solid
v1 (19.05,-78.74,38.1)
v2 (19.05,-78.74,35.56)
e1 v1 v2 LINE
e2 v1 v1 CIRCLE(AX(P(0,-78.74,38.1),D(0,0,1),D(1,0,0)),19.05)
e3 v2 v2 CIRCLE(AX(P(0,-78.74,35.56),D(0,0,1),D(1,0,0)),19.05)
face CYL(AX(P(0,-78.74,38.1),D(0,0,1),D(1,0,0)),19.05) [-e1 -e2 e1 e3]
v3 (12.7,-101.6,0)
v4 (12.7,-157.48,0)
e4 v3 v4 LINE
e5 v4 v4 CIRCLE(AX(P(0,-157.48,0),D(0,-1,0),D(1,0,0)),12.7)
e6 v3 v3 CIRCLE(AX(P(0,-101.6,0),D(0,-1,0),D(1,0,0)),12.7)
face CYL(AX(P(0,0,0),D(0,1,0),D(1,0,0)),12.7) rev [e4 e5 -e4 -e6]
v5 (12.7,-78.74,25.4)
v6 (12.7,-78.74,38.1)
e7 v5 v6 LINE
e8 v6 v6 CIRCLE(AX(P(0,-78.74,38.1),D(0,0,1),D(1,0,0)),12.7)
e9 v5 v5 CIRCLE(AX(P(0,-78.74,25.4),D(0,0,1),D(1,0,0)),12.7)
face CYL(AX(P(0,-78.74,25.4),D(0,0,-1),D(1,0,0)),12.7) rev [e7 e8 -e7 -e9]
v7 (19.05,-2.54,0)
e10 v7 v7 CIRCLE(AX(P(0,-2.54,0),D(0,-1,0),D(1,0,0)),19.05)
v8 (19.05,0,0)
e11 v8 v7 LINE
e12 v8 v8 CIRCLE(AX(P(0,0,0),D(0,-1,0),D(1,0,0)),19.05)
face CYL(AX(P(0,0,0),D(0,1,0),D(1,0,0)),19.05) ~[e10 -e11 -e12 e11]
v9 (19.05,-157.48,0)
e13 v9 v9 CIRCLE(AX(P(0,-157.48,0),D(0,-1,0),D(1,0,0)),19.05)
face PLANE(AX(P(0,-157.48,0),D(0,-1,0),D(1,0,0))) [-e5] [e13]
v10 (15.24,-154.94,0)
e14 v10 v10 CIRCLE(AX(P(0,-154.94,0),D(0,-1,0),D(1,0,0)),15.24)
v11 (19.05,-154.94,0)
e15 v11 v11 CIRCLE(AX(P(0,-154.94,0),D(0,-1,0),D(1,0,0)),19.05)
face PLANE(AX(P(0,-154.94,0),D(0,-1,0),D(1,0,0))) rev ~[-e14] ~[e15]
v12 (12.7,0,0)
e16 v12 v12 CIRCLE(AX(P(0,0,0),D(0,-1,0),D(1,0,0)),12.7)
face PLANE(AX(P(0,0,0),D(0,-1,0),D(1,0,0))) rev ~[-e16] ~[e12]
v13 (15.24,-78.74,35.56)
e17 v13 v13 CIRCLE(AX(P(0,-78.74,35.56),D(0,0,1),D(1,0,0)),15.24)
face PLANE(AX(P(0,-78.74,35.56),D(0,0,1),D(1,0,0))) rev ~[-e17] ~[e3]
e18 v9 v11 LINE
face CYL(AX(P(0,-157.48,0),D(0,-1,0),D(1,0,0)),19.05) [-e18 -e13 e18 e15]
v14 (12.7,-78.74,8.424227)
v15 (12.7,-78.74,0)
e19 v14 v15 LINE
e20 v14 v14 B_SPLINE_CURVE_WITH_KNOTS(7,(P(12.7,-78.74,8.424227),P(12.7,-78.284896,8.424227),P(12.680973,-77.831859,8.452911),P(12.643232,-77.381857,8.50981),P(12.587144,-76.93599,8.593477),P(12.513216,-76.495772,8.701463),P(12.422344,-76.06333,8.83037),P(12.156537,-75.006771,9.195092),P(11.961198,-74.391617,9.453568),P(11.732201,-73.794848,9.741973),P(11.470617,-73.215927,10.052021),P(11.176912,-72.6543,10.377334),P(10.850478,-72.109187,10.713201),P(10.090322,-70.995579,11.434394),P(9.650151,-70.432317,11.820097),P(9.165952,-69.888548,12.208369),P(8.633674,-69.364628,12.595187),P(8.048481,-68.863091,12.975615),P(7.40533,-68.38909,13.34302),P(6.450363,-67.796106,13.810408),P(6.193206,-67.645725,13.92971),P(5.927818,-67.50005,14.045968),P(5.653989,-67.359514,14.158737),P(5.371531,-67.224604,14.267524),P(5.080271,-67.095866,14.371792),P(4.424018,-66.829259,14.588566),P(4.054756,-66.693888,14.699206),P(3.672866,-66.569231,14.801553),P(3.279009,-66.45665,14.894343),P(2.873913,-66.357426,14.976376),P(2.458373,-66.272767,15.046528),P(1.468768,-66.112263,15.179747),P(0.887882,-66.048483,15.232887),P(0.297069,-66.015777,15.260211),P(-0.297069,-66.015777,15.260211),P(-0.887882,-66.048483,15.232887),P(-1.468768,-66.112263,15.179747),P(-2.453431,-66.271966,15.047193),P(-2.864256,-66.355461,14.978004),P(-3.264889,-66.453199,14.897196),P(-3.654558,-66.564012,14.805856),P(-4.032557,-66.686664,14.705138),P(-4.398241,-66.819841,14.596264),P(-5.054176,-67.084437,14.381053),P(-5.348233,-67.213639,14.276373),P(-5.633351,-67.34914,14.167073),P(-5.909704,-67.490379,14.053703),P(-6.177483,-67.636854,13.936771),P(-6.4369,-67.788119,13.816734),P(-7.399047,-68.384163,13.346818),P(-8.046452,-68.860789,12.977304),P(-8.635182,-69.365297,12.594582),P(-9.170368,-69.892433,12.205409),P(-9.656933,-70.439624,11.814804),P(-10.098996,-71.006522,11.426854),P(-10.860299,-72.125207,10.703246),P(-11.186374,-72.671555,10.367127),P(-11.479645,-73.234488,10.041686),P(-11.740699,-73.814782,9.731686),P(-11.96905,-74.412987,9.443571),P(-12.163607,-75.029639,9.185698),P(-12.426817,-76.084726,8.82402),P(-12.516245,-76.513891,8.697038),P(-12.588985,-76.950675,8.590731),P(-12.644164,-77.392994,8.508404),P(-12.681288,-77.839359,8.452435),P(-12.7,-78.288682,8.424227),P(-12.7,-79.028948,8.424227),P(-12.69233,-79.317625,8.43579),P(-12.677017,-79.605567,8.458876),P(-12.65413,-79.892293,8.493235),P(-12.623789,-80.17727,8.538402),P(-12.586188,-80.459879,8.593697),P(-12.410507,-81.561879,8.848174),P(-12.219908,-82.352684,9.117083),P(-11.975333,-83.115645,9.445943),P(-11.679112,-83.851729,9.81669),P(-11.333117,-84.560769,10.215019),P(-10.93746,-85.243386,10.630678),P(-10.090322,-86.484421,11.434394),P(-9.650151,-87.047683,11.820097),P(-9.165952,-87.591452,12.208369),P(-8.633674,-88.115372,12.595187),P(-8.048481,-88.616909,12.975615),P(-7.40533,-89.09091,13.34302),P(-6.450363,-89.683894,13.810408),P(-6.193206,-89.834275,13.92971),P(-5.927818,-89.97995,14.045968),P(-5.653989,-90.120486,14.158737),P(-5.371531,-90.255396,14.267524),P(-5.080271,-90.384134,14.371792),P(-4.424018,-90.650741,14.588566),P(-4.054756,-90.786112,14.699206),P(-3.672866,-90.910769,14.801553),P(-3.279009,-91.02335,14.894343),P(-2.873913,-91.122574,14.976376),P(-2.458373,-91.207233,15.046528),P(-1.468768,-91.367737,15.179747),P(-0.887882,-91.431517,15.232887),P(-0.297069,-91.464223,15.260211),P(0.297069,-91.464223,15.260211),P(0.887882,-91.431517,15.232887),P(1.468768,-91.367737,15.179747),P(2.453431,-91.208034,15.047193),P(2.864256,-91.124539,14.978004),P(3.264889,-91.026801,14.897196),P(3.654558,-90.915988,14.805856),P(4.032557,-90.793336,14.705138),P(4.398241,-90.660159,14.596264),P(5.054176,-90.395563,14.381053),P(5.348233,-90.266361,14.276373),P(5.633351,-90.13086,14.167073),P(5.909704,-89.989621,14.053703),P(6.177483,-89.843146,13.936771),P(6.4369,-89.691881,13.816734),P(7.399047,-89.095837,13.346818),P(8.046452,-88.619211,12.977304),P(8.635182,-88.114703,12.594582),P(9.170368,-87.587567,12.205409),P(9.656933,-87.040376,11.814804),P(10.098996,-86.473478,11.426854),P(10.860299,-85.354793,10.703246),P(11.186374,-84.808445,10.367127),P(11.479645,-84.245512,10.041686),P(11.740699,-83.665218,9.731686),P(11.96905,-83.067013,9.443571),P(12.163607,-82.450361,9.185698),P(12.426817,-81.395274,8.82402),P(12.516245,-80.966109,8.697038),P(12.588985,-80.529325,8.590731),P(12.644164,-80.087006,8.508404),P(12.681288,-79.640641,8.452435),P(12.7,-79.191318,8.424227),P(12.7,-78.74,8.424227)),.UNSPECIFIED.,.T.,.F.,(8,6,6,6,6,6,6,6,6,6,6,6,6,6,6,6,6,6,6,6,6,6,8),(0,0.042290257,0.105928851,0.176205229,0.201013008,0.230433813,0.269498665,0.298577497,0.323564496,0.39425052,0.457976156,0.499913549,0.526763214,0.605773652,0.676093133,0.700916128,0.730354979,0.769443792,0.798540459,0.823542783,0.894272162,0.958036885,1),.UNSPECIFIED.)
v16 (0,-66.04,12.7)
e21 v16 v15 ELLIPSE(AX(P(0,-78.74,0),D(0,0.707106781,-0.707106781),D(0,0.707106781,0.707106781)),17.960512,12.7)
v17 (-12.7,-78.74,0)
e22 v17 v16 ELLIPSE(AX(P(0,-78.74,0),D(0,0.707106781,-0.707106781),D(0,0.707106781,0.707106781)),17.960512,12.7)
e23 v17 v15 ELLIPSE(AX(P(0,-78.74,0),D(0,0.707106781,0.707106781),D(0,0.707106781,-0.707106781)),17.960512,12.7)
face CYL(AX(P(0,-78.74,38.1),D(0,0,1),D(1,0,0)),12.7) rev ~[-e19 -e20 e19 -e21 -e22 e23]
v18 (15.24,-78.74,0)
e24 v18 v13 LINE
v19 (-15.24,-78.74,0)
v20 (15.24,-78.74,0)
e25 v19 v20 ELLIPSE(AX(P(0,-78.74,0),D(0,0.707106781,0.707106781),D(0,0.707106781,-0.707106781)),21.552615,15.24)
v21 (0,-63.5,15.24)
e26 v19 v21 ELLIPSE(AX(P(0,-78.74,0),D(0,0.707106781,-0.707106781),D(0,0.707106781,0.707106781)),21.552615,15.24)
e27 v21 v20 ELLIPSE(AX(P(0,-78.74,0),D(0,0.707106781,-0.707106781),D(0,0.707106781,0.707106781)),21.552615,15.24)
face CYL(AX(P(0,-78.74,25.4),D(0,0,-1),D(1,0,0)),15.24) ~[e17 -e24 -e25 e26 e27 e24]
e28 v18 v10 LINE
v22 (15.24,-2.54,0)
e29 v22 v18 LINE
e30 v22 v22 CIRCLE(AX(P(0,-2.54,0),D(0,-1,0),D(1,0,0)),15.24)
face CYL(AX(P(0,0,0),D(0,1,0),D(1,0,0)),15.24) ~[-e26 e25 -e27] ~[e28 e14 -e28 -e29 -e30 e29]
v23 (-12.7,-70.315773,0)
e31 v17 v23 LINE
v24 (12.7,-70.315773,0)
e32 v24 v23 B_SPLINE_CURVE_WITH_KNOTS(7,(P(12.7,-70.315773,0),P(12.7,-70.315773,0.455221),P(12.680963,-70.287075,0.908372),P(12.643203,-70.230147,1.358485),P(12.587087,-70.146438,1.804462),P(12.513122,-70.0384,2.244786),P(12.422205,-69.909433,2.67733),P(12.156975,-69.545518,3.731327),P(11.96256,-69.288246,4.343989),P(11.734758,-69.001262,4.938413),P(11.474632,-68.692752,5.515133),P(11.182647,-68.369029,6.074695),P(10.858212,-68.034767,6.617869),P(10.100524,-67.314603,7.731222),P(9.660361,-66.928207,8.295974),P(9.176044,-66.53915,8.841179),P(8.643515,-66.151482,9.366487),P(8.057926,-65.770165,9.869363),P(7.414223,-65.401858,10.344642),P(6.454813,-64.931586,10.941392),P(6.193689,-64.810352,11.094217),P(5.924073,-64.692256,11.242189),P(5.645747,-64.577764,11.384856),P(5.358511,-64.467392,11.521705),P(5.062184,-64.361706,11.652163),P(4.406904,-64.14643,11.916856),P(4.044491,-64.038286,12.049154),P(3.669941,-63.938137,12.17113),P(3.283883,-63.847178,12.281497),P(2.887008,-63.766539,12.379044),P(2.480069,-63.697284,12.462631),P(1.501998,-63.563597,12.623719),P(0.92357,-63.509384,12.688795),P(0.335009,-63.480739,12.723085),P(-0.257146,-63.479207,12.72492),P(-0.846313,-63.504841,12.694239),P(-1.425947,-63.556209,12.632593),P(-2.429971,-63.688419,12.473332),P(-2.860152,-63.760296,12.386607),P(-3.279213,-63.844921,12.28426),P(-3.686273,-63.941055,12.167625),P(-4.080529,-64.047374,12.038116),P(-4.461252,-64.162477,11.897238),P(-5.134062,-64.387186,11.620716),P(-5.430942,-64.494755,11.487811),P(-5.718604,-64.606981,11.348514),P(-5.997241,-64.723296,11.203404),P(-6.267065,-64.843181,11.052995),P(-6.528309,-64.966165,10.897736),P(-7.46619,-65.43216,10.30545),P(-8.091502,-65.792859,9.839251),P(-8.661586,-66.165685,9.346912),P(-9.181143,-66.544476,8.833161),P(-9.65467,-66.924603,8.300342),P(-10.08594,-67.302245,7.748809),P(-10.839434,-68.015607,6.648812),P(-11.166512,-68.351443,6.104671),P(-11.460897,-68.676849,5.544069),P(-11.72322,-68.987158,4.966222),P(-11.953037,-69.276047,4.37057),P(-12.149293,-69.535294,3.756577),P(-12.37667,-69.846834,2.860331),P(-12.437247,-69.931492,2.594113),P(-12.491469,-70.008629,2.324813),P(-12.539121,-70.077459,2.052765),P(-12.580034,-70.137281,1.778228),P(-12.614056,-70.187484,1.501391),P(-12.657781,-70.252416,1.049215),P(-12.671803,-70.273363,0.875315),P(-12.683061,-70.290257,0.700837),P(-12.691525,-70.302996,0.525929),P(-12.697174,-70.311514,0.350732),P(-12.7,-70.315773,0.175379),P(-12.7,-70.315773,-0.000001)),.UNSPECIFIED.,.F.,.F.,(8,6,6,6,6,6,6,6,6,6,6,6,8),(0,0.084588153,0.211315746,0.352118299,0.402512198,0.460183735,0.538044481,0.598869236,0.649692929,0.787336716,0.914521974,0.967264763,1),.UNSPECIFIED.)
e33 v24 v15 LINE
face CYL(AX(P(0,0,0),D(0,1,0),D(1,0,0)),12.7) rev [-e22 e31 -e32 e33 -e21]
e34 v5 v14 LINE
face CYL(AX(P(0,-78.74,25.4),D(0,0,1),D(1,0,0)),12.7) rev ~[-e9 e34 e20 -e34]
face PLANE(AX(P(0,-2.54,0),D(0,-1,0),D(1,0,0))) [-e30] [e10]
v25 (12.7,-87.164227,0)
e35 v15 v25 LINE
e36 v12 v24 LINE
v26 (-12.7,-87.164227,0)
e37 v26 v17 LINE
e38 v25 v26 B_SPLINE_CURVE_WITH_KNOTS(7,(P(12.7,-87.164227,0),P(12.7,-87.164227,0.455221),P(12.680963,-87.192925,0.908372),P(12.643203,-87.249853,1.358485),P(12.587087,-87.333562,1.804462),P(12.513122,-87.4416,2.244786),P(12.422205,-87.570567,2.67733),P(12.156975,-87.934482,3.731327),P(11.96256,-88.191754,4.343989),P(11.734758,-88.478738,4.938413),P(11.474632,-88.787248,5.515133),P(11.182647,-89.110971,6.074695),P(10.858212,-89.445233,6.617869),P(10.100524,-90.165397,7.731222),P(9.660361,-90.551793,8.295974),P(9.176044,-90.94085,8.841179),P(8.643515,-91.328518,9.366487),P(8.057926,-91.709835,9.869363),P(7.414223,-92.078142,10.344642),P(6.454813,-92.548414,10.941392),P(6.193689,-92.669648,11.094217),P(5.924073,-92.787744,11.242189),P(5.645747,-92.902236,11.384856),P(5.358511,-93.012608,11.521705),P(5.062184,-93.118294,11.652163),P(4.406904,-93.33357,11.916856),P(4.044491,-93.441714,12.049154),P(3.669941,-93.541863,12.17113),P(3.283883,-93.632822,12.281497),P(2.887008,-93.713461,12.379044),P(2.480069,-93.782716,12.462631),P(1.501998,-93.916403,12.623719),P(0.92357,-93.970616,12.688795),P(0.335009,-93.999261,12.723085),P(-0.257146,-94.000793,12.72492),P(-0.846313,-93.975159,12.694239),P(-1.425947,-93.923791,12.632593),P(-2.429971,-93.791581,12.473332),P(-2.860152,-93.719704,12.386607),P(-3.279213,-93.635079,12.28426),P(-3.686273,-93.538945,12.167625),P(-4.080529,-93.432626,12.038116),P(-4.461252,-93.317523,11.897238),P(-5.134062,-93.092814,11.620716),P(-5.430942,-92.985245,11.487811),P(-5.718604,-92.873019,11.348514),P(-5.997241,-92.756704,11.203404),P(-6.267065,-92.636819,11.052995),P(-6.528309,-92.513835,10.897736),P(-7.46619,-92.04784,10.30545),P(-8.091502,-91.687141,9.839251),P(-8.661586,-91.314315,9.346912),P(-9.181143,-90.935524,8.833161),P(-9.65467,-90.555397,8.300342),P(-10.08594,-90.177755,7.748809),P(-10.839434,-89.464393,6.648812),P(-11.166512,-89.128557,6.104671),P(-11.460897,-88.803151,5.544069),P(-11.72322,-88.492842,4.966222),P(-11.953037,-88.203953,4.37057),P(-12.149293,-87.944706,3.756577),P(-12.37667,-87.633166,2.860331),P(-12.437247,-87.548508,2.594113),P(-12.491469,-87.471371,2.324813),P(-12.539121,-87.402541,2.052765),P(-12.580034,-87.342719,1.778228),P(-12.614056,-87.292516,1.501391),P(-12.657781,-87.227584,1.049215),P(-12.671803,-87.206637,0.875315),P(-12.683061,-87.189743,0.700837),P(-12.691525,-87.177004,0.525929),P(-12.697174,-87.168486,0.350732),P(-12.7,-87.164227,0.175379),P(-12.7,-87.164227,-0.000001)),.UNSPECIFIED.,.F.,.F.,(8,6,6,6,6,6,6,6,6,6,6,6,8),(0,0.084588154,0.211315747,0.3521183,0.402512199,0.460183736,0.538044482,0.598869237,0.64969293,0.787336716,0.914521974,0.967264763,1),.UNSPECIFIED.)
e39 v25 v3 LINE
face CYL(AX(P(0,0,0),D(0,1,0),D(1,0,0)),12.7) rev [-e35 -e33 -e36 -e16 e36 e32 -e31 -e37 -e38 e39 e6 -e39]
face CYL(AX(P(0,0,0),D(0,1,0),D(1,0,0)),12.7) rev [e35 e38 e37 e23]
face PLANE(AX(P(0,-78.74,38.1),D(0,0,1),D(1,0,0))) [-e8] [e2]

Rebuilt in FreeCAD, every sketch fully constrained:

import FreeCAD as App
import Part
import Sketcher

V = App.Vector
Q = App.Units.Quantity

doc = App.newDocument("Part")
body = doc.addObject("PartDesign::Body", "Body")

# Sketch on XZ plane
sketch1 = body.newObject("Sketcher::SketchObject", "Sketch")
sketch1.AttachmentSupport = (doc.getObject("XZ_Plane"), [""])
sketch1.MapMode = "FlatFace"
sketch1.addGeometry([
    Part.Circle(V(0, 0, 0), V(0, 0, 1), 15),
    Part.Circle(V(0, 0, 0), V(0, 0, 1), 13),
], False)
sketch1.addConstraint([
    Sketcher.Constraint("Coincident", 0, 3, -1, 1),
    Sketcher.Constraint("Coincident", 1, 3, -1, 1),
    Sketcher.Constraint("Diameter", 1, Q("1 in")),
    Sketcher.Constraint("Diameter", 0, Q("1.2 in")),
])
pad1 = body.newObject("PartDesign::Pad", "Pad")
pad1.Profile = sketch1
pad1.Length = Q("6.2 in")

# Sketch on XZ plane
sketch2 = body.newObject("Sketcher::SketchObject", "Sketch001")
sketch2.AttachmentSupport = (doc.getObject("XZ_Plane"), [""])
sketch2.MapMode = "FlatFace"
sketch2.addGeometry([
    Part.Circle(V(0, 0, 0), V(0, 0, 1), 19),
    Part.Circle(V(0, 0, 0), V(0, 0, 1), 15),
], False)
sketch2.addConstraint([
    Sketcher.Constraint("Coincident", 0, 3, -1, 1),
    Sketcher.Constraint("Coincident", 1, 3, -1, 1),
    Sketcher.Constraint("Diameter", 0, Q("1.5 in")),
    Sketcher.Constraint("Diameter", 1, Q("1.2 in")),
])
pad2 = body.newObject("PartDesign::Pad", "Pad001")
pad2.Profile = sketch2
pad2.Length = Q("0.1 in")

# Sketch on XZ plane
sketch3 = body.newObject("Sketcher::SketchObject", "Sketch002")
sketch3.AttachmentSupport = (doc.getObject("XZ_Plane"), [""])
sketch3.MapMode = "FlatFace"
sketch3.AttachmentOffset = App.Placement(V(0, 0, 6.2 * 25.4), App.Rotation())
sketch3.addGeometry([
    Part.Circle(V(0, 0, 0), V(0, 0, 1), 19),
    Part.Circle(V(0, 0, 0), V(0, 0, 1), 15),
], False)
sketch3.addConstraint([
    Sketcher.Constraint("Coincident", 0, 3, -1, 1),
    Sketcher.Constraint("Coincident", 1, 3, -1, 1),
    Sketcher.Constraint("Diameter", 0, Q("1.5 in")),
    Sketcher.Constraint("Diameter", 1, Q("1.2 in")),
])
pad3 = body.newObject("PartDesign::Pad", "Pad002")
pad3.Profile = sketch3
pad3.Length = Q("0.1 in")
pad3.Reversed = True

# Sketch on XY plane
sketch4 = body.newObject("Sketcher::SketchObject", "Sketch003")
sketch4.AttachmentSupport = (doc.getObject("XY_Plane"), [""])
sketch4.MapMode = "FlatFace"
sketch4.AttachmentOffset = App.Placement(V(0, 0, 1 * 25.4), App.Rotation())
sketch4.addGeometry([
    Part.Circle(V(0, -79, 0), V(0, 0, 1), 15),
    Part.Circle(V(0, -79, 0), V(0, 0, 1), 13),
], False)
sketch4.addConstraint([
    Sketcher.Constraint("Coincident", 1, 3, 0, 3),
    Sketcher.Constraint("PointOnObject", 0, 3, -2),
    Sketcher.Constraint("Diameter", 1, Q("1 in")),
    Sketcher.Constraint("Diameter", 0, Q("1.2 in")),
    Sketcher.Constraint("DistanceY", 0, 3, -1, 1, Q("3.1 in")),
])
pad4 = body.newObject("PartDesign::Pad", "Pad003")
pad4.Profile = sketch4
pad4.Type = "TwoLengths"
pad4.Length = Q("1 in")
pad4.Length2 = Q("0.5 in")
pad4.Reversed = True

# Sketch on XY plane
sketch5 = body.newObject("Sketcher::SketchObject", "Sketch004")
sketch5.AttachmentSupport = (doc.getObject("XY_Plane"), [""])
sketch5.MapMode = "FlatFace"
sketch5.AttachmentOffset = App.Placement(V(0, 0, 1.5 * 25.4), App.Rotation())
sketch5.addGeometry([
    Part.Circle(V(0, -79, 0), V(0, 0, 1), 19),
    Part.Circle(V(0, -79, 0), V(0, 0, 1), 15),
], False)
sketch5.addConstraint([
    Sketcher.Constraint("Coincident", 1, 3, 0, 3),
    Sketcher.Constraint("PointOnObject", 0, 3, -2),
    Sketcher.Constraint("Diameter", 0, Q("1.5 in")),
    Sketcher.Constraint("Diameter", 1, Q("1.2 in")),
    Sketcher.Constraint("DistanceY", 0, 3, -1, 1, Q("3.1 in")),
])
pad5 = body.newObject("PartDesign::Pad", "Pad004")
pad5.Profile = sketch5
pad5.Length = Q("0.1 in")
pad5.Reversed = True

# Sketch on XZ plane
sketch6 = body.newObject("Sketcher::SketchObject", "Sketch005")
sketch6.AttachmentSupport = (doc.getObject("XZ_Plane"), [""])
sketch6.MapMode = "FlatFace"
sketch6.addGeometry(Part.Circle(V(0, 0, 0), V(0, 0, 1), 13), False)
sketch6.addConstraint([
    Sketcher.Constraint("Coincident", 0, 3, -1, 1),
    Sketcher.Constraint("Diameter", 0, Q("1 in")),
])
pocket1 = body.newObject("PartDesign::Pocket", "Pocket")
pocket1.Profile = sketch6
pocket1.Length = Q("4 in")
pocket1.Reversed = True

# Sketch on XY plane
sketch7 = body.newObject("Sketcher::SketchObject", "Sketch006")
sketch7.AttachmentSupport = (doc.getObject("XY_Plane"), [""])
sketch7.MapMode = "FlatFace"
sketch7.AttachmentOffset = App.Placement(V(0, 0, 1.5 * 25.4), App.Rotation())
sketch7.addGeometry(Part.Circle(V(0, -79, 0), V(0, 0, 1), 13), False)
sketch7.addConstraint([
    Sketcher.Constraint("PointOnObject", 0, 3, -2),
    Sketcher.Constraint("Diameter", 0, Q("1 in")),
    Sketcher.Constraint("DistanceY", 0, 3, -1, 1, Q("3.1 in")),
])
pocket2 = body.newObject("PartDesign::Pocket", "Pocket001")
pocket2.Profile = sketch7
pocket2.Length = Q("1.5 in")

doc.recompute()
